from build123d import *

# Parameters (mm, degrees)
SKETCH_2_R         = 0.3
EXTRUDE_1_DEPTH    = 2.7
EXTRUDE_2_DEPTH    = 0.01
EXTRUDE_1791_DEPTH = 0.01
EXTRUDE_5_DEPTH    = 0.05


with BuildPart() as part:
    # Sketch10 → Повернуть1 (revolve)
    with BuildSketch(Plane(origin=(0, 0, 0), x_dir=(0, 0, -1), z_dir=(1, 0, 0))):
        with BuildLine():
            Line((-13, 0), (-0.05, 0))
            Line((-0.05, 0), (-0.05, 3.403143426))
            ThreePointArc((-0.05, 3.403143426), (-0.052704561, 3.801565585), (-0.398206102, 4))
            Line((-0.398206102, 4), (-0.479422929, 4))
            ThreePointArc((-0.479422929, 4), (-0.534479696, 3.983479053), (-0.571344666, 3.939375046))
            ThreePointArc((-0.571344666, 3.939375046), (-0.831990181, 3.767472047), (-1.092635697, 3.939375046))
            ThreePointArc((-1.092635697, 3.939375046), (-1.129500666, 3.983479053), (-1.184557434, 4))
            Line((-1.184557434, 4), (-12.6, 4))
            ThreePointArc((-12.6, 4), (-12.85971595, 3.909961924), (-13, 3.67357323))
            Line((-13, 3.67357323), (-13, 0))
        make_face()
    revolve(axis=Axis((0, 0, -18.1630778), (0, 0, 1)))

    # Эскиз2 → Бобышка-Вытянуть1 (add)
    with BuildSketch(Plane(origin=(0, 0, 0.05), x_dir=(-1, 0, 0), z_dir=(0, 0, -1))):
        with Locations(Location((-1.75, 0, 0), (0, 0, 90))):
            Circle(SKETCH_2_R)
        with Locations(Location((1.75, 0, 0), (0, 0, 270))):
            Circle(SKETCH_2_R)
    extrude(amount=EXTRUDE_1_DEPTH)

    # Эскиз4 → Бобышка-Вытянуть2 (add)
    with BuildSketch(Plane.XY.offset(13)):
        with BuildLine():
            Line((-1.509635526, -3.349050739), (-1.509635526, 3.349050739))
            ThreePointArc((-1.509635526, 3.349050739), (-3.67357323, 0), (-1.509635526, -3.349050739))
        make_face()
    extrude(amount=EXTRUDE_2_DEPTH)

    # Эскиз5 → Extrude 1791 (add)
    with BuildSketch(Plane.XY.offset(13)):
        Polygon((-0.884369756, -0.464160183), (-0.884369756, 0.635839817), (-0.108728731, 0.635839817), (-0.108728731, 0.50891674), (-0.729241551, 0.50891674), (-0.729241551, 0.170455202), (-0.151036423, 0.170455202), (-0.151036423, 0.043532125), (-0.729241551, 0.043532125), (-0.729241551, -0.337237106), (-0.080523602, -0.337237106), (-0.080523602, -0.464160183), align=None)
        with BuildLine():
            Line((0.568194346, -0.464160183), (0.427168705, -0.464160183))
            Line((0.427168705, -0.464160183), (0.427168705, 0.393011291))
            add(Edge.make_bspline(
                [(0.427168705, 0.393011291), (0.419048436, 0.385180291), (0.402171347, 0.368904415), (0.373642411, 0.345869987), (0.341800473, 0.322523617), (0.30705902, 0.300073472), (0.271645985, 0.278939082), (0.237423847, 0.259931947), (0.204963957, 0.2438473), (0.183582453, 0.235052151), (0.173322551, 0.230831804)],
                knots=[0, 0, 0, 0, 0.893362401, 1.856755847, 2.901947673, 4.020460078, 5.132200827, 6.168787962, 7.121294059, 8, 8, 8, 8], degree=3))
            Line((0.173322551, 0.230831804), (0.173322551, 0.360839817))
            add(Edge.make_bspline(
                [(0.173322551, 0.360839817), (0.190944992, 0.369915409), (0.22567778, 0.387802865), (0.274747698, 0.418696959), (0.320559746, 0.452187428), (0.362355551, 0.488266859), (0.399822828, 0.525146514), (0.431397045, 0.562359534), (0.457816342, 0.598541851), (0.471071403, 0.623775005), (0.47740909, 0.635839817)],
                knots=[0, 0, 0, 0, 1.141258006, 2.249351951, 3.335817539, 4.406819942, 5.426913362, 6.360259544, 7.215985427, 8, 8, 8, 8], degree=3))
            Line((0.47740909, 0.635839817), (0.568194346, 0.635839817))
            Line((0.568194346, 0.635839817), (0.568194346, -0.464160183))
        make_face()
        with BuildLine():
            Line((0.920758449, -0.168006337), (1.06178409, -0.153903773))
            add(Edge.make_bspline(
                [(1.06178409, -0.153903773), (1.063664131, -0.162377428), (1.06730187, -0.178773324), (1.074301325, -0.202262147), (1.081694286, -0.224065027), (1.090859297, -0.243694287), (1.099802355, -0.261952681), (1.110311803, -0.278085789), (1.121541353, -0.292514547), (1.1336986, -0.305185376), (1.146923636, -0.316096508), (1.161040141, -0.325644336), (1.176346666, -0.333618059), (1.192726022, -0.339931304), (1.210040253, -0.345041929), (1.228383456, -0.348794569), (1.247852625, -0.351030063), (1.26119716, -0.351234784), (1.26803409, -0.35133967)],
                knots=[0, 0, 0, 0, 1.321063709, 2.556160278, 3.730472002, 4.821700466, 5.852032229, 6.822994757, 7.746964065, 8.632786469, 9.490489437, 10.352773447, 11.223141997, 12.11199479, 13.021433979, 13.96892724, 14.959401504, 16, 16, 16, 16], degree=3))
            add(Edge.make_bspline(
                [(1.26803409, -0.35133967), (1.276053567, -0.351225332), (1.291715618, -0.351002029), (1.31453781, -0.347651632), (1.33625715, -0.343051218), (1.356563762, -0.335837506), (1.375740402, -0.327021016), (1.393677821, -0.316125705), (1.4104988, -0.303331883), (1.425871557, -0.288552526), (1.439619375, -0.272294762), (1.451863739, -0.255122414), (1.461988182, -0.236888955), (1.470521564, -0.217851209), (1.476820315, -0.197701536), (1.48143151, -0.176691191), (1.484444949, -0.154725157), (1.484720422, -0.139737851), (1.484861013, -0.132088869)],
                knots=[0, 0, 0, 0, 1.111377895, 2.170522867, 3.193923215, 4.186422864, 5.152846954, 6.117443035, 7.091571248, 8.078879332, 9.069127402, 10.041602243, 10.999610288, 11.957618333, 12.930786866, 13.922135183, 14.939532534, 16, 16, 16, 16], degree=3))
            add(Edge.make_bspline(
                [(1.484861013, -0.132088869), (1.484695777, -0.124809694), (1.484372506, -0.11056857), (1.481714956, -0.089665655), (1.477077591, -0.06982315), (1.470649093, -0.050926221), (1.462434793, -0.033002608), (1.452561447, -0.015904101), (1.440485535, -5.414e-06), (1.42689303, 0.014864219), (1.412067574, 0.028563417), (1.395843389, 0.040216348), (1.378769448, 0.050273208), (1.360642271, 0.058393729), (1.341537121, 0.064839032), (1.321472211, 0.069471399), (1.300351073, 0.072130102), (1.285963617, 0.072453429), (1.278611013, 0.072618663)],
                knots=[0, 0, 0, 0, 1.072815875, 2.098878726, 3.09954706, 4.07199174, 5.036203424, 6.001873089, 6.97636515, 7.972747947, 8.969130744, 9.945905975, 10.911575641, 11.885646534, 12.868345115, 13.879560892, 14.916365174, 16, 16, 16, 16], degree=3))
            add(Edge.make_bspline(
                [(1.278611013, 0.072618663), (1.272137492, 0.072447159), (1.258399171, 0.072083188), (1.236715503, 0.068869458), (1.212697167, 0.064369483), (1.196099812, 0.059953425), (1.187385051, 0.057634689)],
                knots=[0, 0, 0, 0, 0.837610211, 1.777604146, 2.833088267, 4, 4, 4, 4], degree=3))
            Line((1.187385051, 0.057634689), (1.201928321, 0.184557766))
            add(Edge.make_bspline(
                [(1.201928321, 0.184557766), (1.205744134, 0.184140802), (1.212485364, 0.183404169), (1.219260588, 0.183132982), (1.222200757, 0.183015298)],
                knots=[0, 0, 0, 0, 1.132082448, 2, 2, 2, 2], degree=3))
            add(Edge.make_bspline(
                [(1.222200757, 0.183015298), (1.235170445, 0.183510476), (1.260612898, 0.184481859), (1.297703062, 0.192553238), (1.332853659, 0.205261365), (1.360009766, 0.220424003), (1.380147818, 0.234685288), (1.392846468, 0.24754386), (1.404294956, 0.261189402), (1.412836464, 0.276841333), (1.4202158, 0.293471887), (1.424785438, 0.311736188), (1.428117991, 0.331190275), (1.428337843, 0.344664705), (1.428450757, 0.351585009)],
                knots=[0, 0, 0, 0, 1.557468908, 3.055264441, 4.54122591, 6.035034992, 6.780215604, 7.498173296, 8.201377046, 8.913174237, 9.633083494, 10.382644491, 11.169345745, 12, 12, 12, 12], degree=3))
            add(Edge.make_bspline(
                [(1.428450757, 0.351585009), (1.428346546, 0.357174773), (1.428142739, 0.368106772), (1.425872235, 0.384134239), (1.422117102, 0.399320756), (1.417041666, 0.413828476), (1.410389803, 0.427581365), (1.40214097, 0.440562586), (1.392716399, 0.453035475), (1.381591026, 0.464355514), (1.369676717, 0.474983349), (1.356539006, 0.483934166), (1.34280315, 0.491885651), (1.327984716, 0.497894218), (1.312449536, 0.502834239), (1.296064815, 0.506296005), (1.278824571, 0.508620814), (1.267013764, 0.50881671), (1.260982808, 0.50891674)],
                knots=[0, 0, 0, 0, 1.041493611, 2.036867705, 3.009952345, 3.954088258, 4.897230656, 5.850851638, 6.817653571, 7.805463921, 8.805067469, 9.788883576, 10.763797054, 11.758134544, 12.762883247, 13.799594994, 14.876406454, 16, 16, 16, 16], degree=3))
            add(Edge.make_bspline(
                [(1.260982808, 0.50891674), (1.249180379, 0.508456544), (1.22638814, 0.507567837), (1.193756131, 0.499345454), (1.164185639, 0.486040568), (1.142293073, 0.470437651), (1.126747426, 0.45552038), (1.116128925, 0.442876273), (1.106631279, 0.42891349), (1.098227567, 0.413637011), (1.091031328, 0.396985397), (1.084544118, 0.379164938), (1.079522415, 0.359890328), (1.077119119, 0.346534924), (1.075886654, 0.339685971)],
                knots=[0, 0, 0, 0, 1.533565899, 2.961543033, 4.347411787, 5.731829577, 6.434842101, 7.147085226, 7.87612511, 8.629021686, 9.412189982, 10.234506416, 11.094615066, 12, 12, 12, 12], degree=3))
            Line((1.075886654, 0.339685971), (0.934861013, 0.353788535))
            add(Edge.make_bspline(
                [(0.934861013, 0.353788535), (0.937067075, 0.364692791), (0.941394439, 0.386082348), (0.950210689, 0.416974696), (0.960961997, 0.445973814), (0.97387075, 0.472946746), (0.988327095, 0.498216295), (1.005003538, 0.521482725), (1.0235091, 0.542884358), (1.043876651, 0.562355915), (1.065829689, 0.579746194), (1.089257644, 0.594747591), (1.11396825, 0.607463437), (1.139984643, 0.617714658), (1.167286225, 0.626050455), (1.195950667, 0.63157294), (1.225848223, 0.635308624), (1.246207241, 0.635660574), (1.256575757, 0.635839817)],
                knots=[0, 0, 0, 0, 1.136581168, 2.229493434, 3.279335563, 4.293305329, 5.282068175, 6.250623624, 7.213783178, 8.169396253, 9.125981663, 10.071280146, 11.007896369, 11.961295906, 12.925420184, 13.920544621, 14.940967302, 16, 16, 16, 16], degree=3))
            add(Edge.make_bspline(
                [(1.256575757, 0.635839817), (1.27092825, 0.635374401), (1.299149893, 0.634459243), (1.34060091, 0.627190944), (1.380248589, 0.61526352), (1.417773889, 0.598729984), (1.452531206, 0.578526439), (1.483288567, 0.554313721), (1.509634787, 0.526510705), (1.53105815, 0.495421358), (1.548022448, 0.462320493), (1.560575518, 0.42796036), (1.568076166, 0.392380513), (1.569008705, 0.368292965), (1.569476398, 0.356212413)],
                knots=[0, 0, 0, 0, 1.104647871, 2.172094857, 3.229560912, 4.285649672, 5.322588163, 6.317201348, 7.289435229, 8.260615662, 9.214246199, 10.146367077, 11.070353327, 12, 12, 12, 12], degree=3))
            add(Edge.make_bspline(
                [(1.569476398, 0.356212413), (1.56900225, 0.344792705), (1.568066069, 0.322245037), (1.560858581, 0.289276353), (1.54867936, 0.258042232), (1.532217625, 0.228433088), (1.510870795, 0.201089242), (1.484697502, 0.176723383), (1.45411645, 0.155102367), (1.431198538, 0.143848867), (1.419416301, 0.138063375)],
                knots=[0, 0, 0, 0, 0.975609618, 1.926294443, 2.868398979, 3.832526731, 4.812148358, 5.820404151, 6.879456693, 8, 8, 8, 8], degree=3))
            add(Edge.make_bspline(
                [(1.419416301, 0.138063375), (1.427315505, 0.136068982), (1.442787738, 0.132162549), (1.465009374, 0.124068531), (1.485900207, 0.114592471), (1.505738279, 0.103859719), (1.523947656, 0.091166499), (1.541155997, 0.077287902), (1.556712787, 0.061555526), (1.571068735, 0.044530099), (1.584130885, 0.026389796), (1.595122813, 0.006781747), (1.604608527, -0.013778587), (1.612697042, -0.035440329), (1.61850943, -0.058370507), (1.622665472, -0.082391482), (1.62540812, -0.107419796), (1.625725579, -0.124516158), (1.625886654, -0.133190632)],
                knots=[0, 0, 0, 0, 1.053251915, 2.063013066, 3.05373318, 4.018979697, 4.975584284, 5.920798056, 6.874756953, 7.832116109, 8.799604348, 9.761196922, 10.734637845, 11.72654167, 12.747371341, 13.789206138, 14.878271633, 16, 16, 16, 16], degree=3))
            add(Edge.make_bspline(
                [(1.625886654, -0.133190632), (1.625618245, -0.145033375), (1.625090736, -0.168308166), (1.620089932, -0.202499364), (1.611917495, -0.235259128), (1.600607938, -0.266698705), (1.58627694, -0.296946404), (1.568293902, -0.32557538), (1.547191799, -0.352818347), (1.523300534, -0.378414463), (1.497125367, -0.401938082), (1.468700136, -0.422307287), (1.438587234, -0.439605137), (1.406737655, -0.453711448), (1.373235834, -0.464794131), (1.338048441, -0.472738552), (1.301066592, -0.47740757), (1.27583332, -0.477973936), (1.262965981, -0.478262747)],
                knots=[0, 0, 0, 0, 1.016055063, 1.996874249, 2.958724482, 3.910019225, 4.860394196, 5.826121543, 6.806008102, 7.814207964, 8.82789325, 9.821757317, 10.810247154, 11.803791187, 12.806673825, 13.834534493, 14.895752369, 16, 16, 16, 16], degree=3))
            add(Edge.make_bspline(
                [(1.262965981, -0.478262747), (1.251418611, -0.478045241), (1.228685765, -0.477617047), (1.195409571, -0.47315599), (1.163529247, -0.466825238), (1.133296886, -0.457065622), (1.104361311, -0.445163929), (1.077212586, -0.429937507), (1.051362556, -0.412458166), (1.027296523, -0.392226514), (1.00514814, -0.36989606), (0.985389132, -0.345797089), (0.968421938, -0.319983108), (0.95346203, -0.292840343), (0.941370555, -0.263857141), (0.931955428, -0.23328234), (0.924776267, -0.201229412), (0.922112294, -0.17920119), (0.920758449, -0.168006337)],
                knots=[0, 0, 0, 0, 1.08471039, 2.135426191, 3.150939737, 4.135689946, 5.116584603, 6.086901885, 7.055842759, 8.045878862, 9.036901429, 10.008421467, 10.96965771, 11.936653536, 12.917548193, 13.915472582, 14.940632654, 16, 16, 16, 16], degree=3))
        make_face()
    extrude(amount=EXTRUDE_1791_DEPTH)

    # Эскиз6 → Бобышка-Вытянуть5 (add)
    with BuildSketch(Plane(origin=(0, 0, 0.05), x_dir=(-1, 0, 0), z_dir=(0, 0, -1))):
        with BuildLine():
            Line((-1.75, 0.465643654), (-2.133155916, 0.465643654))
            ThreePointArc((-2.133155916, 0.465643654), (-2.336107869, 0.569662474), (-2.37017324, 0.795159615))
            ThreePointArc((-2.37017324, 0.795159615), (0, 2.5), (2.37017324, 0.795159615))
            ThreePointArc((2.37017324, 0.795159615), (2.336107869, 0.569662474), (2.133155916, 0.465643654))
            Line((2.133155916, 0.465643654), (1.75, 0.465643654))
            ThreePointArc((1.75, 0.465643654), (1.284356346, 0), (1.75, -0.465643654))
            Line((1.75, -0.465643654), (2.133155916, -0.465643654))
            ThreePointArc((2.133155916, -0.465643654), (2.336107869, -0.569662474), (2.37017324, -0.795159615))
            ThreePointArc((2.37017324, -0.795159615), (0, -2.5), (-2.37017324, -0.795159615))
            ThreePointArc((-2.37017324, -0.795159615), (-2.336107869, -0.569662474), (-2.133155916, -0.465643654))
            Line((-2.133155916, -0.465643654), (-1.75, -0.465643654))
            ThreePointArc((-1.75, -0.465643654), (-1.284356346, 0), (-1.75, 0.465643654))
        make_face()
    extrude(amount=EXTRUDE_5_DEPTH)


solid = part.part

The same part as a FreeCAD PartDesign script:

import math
import FreeCAD as App
import Part
import Sketcher
from FreeCAD import Vector


def add_polygon(sketch, points):
    """Adds a closed chain of lines whose ends are joined by coincident constraints."""
    first, n = sketch.GeometryCount, len(points)
    for a, b in zip(points, points[1:] + points[:1]):
        sketch.addGeometry(Part.LineSegment(App.Vector(*a, 0), App.Vector(*b, 0)), False)
    for i in range(n):
        sketch.addConstraint(Sketcher.Constraint("Coincident", first + i, 2, first + (i + 1) % n, 1))

doc = App.newDocument("Part")
params = doc.addObject("Spreadsheet::Sheet", "Params")
for row, (alias, value) in enumerate([
    ("sketch1_radius", "0.4 mm"),
    ("sketch1_radius2", "0.1 mm"),
    ("sketch1_height", "12.95 mm"),
    ("revolution_angle", "360 deg"),
    ("sketch2_diameter", "0.6 mm"),
    ("pad1_length", "2.7 mm"),
    ("pad2_length", "0.01 mm"),
    ("sketch4_height", "1.1 mm"),
    ("pad3_length", "0.01 mm"),
    ("sketch5_radius", "2.5 mm"),
    ("sketch5_radius2", "0.25 mm"),
    ("pad4_length", "0.05 mm"),
], start=1):
    params.set(f"A{row}", alias)
    params.set(f"B{row}", "=" + value)
    params.setAlias(f"B{row}", alias)

body = doc.addObject("PartDesign::Body", "Body")

# Sketch on YZ plane
sketch1 = body.newObject("Sketcher::SketchObject", "Sketch")
sketch1.AttachmentSupport = (doc.getObject("YZ_Plane"), [""])
sketch1.MapMode = "FlatFace"
sketch1.addGeometry([
    Part.LineSegment(Vector(0, 13, 0), Vector(0, 0.05, 0)),  # 0
    Part.LineSegment(Vector(0, 0.05, 0), Vector(3.4, 0.05, 0)),  # 1
    Part.ArcOfCircle(Part.Circle(Vector(3.6, 0.4, 0), Vector(0, 0, 1), 0.4), math.radians(-119), math.radians(0)),  # 2
    Part.LineSegment(Vector(4, 0.4, 0), Vector(4, 0.48, 0)),  # 3
    Part.ArcOfCircle(Part.Circle(Vector(3.9, 0.48, 0), Vector(0, 0, 1), 0.1), math.radians(0), math.radians(67)),  # 4
    Part.ArcOfCircle(Part.Circle(Vector(4.05, 0.83, 0), Vector(0, 0, 1), 0.28), math.radians(113), math.radians(247)),  # 5
    Part.ArcOfCircle(Part.Circle(Vector(3.9, 1.18, 0), Vector(0, 0, 1), 0.1), math.radians(-67), math.radians(0)),  # 6
    Part.LineSegment(Vector(4, 1.18, 0), Vector(4, 12.6, 0)),  # 7
    Part.ArcOfCircle(Part.Circle(Vector(3.6, 12.61, 0), Vector(0, 0, 1), 0.4), math.radians(-1), math.radians(79)),  # 8
    Part.LineSegment(Vector(3.67, 13, 0), Vector(0, 13, 0)),  # 9
], False)
sketch1.addConstraint([
    Sketcher.Constraint("Coincident", 0, 2, 1, 1),
    Sketcher.Constraint("Coincident", 1, 2, 2, 1),
    Sketcher.Constraint("Tangent", 2, 2, 3, 1),
    Sketcher.Constraint("Tangent", 3, 2, 4, 1),
    Sketcher.Constraint("Tangent", 4, 2, 5, 2),
    Sketcher.Constraint("Tangent", 5, 1, 6, 1),
    Sketcher.Constraint("Tangent", 6, 2, 7, 1),
    Sketcher.Constraint("Coincident", 7, 2, 8, 1),
    Sketcher.Constraint("Coincident", 8, 2, 9, 1),
    Sketcher.Constraint("Coincident", 9, 2, 0, 1),
    Sketcher.Constraint("Vertical", 0),
    Sketcher.Constraint("Horizontal", 1),
    Sketcher.Constraint("Vertical", 3),
    Sketcher.Constraint("Vertical", 7),
    Sketcher.Constraint("Horizontal", 9),
    Sketcher.Constraint("Equal", 4, 6),
    Sketcher.Constraint("Equal", 2, 8),
    Sketcher.Constraint("PointOnObject", 0, 2, -2),
    Sketcher.Constraint("Vertical", 4, 3, 6, 3),
    Sketcher.Constraint("Radius", 2, 0.4),
    Sketcher.Constraint("Radius", 4, 0.1),
    Sketcher.Constraint("DistanceX", -1, 1, 2, 2, 4.0),
    Sketcher.Constraint("DistanceY", -1, 1, 8, 2, 13.0),
    Sketcher.Constraint("DistanceY", 0, 2, 0, 1, 12.95),
    Sketcher.Constraint("DistanceY", -1, 1, 7, 2, 12.6),
    Sketcher.Constraint("Radius", 5, 0.283552),
    Sketcher.Constraint("DistanceX", 8, 2, 5, 1, 0.265802),
    Sketcher.Constraint("DistanceX", 1, 1, 1, 2, 3.403143),
    Sketcher.Constraint("DistanceX", 9, 2, 9, 1, 3.673573),
    Sketcher.Constraint("DistanceY", 3, 1, 3, 2, 0.081217),
])
sketch1.setExpression("Constraints[19]", "Params.sketch1_radius")
sketch1.setExpression("Constraints[20]", "Params.sketch1_radius2")
sketch1.setExpression("Constraints[23]", "Params.sketch1_height")
revolution = body.newObject("PartDesign::Revolution", "Revolution")
revolution.Profile = sketch1
revolution.ReferenceAxis = (sketch1, ["V_Axis"])
revolution.setExpression("Angle", "Params.revolution_angle")

# Sketch on XY plane
sketch2 = body.newObject("Sketcher::SketchObject", "Sketch001")
sketch2.AttachmentSupport = (doc.getObject("XY_Plane"), [""])
sketch2.MapMode = "FlatFace"
sketch2.AttachmentOffset = App.Placement(Vector(0, 0, 0.05), App.Rotation())
sketch2.addGeometry([
    Part.Circle(Vector(1.75, 0, 0), Vector(0, 0, 1), 0.3),
    Part.Circle(Vector(-1.75, 0, 0), Vector(0, 0, 1), 0.3),
], False)
sketch2.addConstraint([
    Sketcher.Constraint("Equal", 0, 1),
    Sketcher.Constraint("Symmetric", 0, 3, 1, 3, -1, 1),
    Sketcher.Constraint("PointOnObject", 0, 3, -1),
    Sketcher.Constraint("Diameter", 0, 0.6),
    Sketcher.Constraint("DistanceX", 1, 3, 0, 3, 3.5),
])
sketch2.setExpression("Constraints[3]", "Params.sketch2_diameter")
pad1 = body.newObject("PartDesign::Pad", "Pad")
pad1.Profile = sketch2
pad1.setExpression("Length", "Params.pad1_length")
pad1.Reversed = True

# Sketch on XY plane
sketch3 = body.newObject("Sketcher::SketchObject", "Sketch002")
sketch3.AttachmentSupport = (doc.getObject("XY_Plane"), [""])
sketch3.MapMode = "FlatFace"
sketch3.AttachmentOffset = App.Placement(Vector(0, 0, 13), App.Rotation())
sketch3.addGeometry([
    Part.LineSegment(Vector(-1.5, -3.3, 0), Vector(-1.5, 3.3, 0)),
    Part.ArcOfCircle(Part.Circle(Vector(0, 0, 0), Vector(0, 0, 1), 3.7), math.radians(114), math.radians(246)),
], False)
sketch3.addConstraint([
    Sketcher.Constraint("Coincident", 0, 1, 1, 2),
    Sketcher.Constraint("Coincident", 1, 1, 0, 2),
    Sketcher.Constraint("Vertical", 0),
    Sketcher.Constraint("Coincident", 1, 3, -1, 1),
    Sketcher.Constraint("DistanceY", 0, 1, 0, 2, 6.698101),
    Sketcher.Constraint("Radius", 1, 3.673573),
])
pad2 = body.newObject("PartDesign::Pad", "Pad001")
pad2.Profile = sketch3
pad2.setExpression("Length", "Params.pad2_length")

# Sketch on XY plane
sketch4 = body.newObject("Sketcher::SketchObject", "Sketch003")
sketch4.AttachmentSupport = (doc.getObject("XY_Plane"), [""])
sketch4.MapMode = "FlatFace"
sketch4.AttachmentOffset = App.Placement(Vector(0, 0, 13), App.Rotation())
add_polygon(sketch4, [(-0.88437, 0.63584), (-0.88437, -0.46416), (-0.080524, -0.46416), (-0.080524, -0.337237), (-0.729242, -0.337237), (-0.729242, 0.043532), (-0.151036, 0.043532), (-0.151036, 0.170455), (-0.729242, 0.170455), (-0.729242, 0.508917), (-0.108729, 0.508917), (-0.108729, 0.63584)])  # lines 0-11
sketch4.addGeometry(Part.LineSegment(Vector(0.427169, -0.46416, 0), Vector(0.568194, -0.46416, 0)), False)  # 12
sketch4.addGeometry(Part.LineSegment(Vector(0.568194, -0.46416, 0), Vector(0.568194, 0.63584, 0)), False)  # 13
sketch4.addGeometry(Part.LineSegment(Vector(0.568194, 0.63584, 0), Vector(0.477409, 0.63584, 0)), False)  # 14
sketch4.addGeometry(Part.BSplineCurve([Vector(0.173323, 0.36084, 0), Vector(0.190945, 0.369915, 0), Vector(0.225678, 0.387803, 0), Vector(0.274748, 0.418697, 0), Vector(0.32056, 0.452187, 0), Vector(0.362356, 0.488267, 0), Vector(0.399823, 0.525147, 0), Vector(0.431397, 0.56236, 0), Vector(0.457816, 0.598542, 0), Vector(0.471071, 0.623775, 0), Vector(0.477409, 0.63584, 0)], [4, 1, 1, 1, 1, 1, 1, 1, 4], [0, 1.141258006, 2.249351951, 3.335817539, 4.406819942, 5.426913362, 6.360259544, 7.215985427, 8], False, 3, [1, 1, 1, 1, 1, 1, 1, 1, 1, 1, 1], False), False)  # 15
sketch4.addGeometry(Part.LineSegment(Vector(0.173323, 0.36084, 0), Vector(0.173323, 0.230832, 0)), False)  # 16
sketch4.addGeometry(Part.BSplineCurve([Vector(0.427169, 0.393011, 0), Vector(0.419048, 0.38518, 0), Vector(0.402171, 0.368904, 0), Vector(0.373642, 0.34587, 0), Vector(0.3418, 0.322524, 0), Vector(0.307059, 0.300073, 0), Vector(0.271646, 0.278939, 0), Vector(0.237424, 0.259932, 0), Vector(0.204964, 0.243847, 0), Vector(0.183582, 0.235052, 0), Vector(0.173323, 0.230832, 0)], [4, 1, 1, 1, 1, 1, 1, 1, 4], [0, 0.893362401, 1.856755847, 2.901947673, 4.020460078, 5.132200827, 6.168787962, 7.121294059, 8], False, 3, [1, 1, 1, 1, 1, 1, 1, 1, 1, 1, 1], False), False)  # 17
sketch4.addGeometry(Part.LineSegment(Vector(0.427169, 0.393011, 0), Vector(0.427169, -0.46416, 0)), False)  # 18
sketch4.addGeometry(Part.LineSegment(Vector(1.061784, -0.153904, 0), Vector(0.920758, -0.168006, 0)), False)  # 19
sketch4.addGeometry(Part.BSplineCurve([Vector(1.262966, -0.478263, 0), Vector(1.251419, -0.478045, 0), Vector(1.228686, -0.477617, 0), Vector(1.19541, -0.473156, 0), Vector(1.163529, -0.466825, 0), Vector(1.133297, -0.457066, 0), Vector(1.104361, -0.445164, 0), Vector(1.077213, -0.429938, 0), Vector(1.051363, -0.412458, 0), Vector(1.027297, -0.392227, 0), Vector(1.005148, -0.369896, 0), Vector(0.985389, -0.345797, 0), Vector(0.968422, -0.319983, 0), Vector(0.953462, -0.29284, 0), Vector(0.941371, -0.263857, 0), Vector(0.931955, -0.233282, 0), Vector(0.924776, -0.201229, 0), Vector(0.922112, -0.179201, 0), Vector(0.920758, -0.168006, 0)], [4, 1, 1, 1, 1, 1, 1, 1, 1, 1, 1, 1, 1, 1, 1, 1, 4], [0, 1.08471039, 2.135426191, 3.150939737, 4.135689946, 5.116584603, 6.086901885, 7.055842759, 8.045878862, 9.036901429, 10.008421467, 10.96965771, 11.936653536, 12.917548193, 13.915472582, 14.940632654, 16], False, 3, [1, 1, 1, 1, 1, 1, 1, 1, 1, 1, 1, 1, 1, 1, 1, 1, 1, 1, 1], False), False)  # 20
sketch4.addGeometry(Part.BSplineCurve([Vector(1.625887, -0.133191, 0), Vector(1.625618, -0.145033, 0), Vector(1.625091, -0.168308, 0), Vector(1.62009, -0.202499, 0), Vector(1.611917, -0.235259, 0), Vector(1.600608, -0.266699, 0), Vector(1.586277, -0.296946, 0), Vector(1.568294, -0.325575, 0), Vector(1.547192, -0.352818, 0), Vector(1.523301, -0.378414, 0), Vector(1.497125, -0.401938, 0), Vector(1.4687, -0.422307, 0), Vector(1.438587, -0.439605, 0), Vector(1.406738, -0.453711, 0), Vector(1.373236, -0.464794, 0), Vector(1.338048, -0.472739, 0), Vector(1.301067, -0.477408, 0), Vector(1.275833, -0.477974, 0), Vector(1.262966, -0.478263, 0)], [4, 1, 1, 1, 1, 1, 1, 1, 1, 1, 1, 1, 1, 1, 1, 1, 4], [0, 1.016055063, 1.996874249, 2.958724482, 3.910019225, 4.860394196, 5.826121543, 6.806008102, 7.814207964, 8.82789325, 9.821757317, 10.810247154, 11.803791187, 12.806673825, 13.834534493, 14.895752369, 16], False, 3, [1, 1, 1, 1, 1, 1, 1, 1, 1, 1, 1, 1, 1, 1, 1, 1, 1, 1, 1], False), False)  # 21
sketch4.addGeometry(Part.BSplineCurve([Vector(1.419416, 0.138063, 0), Vector(1.427316, 0.136069, 0), Vector(1.442788, 0.132163, 0), Vector(1.465009, 0.124069, 0), Vector(1.4859, 0.114592, 0), Vector(1.505738, 0.10386, 0), Vector(1.523948, 0.091166, 0), Vector(1.541156, 0.077288, 0), Vector(1.556713, 0.061556, 0), Vector(1.571069, 0.04453, 0), Vector(1.584131, 0.02639, 0), Vector(1.595123, 0.006782, 0), Vector(1.604609, -0.013779, 0), Vector(1.612697, -0.03544, 0), Vector(1.618509, -0.058371, 0), Vector(1.622665, -0.082391, 0), Vector(1.625408, -0.10742, 0), Vector(1.625726, -0.124516, 0), Vector(1.625887, -0.133191, 0)], [4, 1, 1, 1, 1, 1, 1, 1, 1, 1, 1, 1, 1, 1, 1, 1, 4], [0, 1.053251915, 2.063013066, 3.05373318, 4.018979697, 4.975584284, 5.920798056, 6.874756953, 7.832116109, 8.799604348, 9.761196922, 10.734637845, 11.72654167, 12.747371341, 13.789206138, 14.878271633, 16], False, 3, [1, 1, 1, 1, 1, 1, 1, 1, 1, 1, 1, 1, 1, 1, 1, 1, 1, 1, 1], False), False)  # 22
sketch4.addGeometry(Part.BSplineCurve([Vector(1.569476, 0.356212, 0), Vector(1.569002, 0.344793, 0), Vector(1.568066, 0.322245, 0), Vector(1.560859, 0.289276, 0), Vector(1.548679, 0.258042, 0), Vector(1.532218, 0.228433, 0), Vector(1.510871, 0.201089, 0), Vector(1.484698, 0.176723, 0), Vector(1.454116, 0.155102, 0), Vector(1.431199, 0.143849, 0), Vector(1.419416, 0.138063, 0)], [4, 1, 1, 1, 1, 1, 1, 1, 4], [0, 0.975609618, 1.926294443, 2.868398979, 3.832526731, 4.812148358, 5.820404151, 6.879456693, 8], False, 3, [1, 1, 1, 1, 1, 1, 1, 1, 1, 1, 1], False), False)  # 23
sketch4.addGeometry(Part.BSplineCurve([Vector(1.256576, 0.63584, 0), Vector(1.270928, 0.635374, 0), Vector(1.29915, 0.634459, 0), Vector(1.340601, 0.627191, 0), Vector(1.380249, 0.615264, 0), Vector(1.417774, 0.59873, 0), Vector(1.452531, 0.578526, 0), Vector(1.483289, 0.554314, 0), Vector(1.509635, 0.526511, 0), Vector(1.531058, 0.495421, 0), Vector(1.548022, 0.46232, 0), Vector(1.560576, 0.42796, 0), Vector(1.568076, 0.392381, 0), Vector(1.569009, 0.368293, 0), Vector(1.569476, 0.356212, 0)], [4, 1, 1, 1, 1, 1, 1, 1, 1, 1, 1, 1, 4], [0, 1.104647871, 2.172094857, 3.229560912, 4.285649672, 5.322588163, 6.317201348, 7.289435229, 8.260615662, 9.214246199, 10.146367077, 11.070353327, 12], False, 3, [1, 1, 1, 1, 1, 1, 1, 1, 1, 1, 1, 1, 1, 1, 1], False), False)  # 24
sketch4.addGeometry(Part.BSplineCurve([Vector(0.934861, 0.353789, 0), Vector(0.937067, 0.364693, 0), Vector(0.941394, 0.386082, 0), Vector(0.950211, 0.416975, 0), Vector(0.960962, 0.445974, 0), Vector(0.973871, 0.472947, 0), Vector(0.988327, 0.498216, 0), Vector(1.005004, 0.521483, 0), Vector(1.023509, 0.542884, 0), Vector(1.043877, 0.562356, 0), Vector(1.06583, 0.579746, 0), Vector(1.089258, 0.594748, 0), Vector(1.113968, 0.607463, 0), Vector(1.139985, 0.617715, 0), Vector(1.167286, 0.62605, 0), Vector(1.195951, 0.631573, 0), Vector(1.225848, 0.635309, 0), Vector(1.246207, 0.635661, 0), Vector(1.256576, 0.63584, 0)], [4, 1, 1, 1, 1, 1, 1, 1, 1, 1, 1, 1, 1, 1, 1, 1, 4], [0, 1.136581168, 2.229493434, 3.279335563, 4.293305329, 5.282068175, 6.250623624, 7.213783178, 8.169396253, 9.125981663, 10.071280146, 11.007896369, 11.961295906, 12.925420184, 13.920544621, 14.940967302, 16], False, 3, [1, 1, 1, 1, 1, 1, 1, 1, 1, 1, 1, 1, 1, 1, 1, 1, 1, 1, 1], False), False)  # 25
sketch4.addGeometry(Part.LineSegment(Vector(0.934861, 0.353789, 0), Vector(1.075887, 0.339686, 0)), False)  # 26
sketch4.addGeometry(Part.BSplineCurve([Vector(1.260983, 0.508917, 0), Vector(1.24918, 0.508457, 0), Vector(1.226388, 0.507568, 0), Vector(1.193756, 0.499345, 0), Vector(1.164186, 0.486041, 0), Vector(1.142293, 0.470438, 0), Vector(1.126747, 0.45552, 0), Vector(1.116129, 0.442876, 0), Vector(1.106631, 0.428913, 0), Vector(1.098228, 0.413637, 0), Vector(1.091031, 0.396985, 0), Vector(1.084544, 0.379165, 0), Vector(1.079522, 0.35989, 0), Vector(1.077119, 0.346535, 0), Vector(1.075887, 0.339686, 0)], [4, 1, 1, 1, 1, 1, 1, 1, 1, 1, 1, 1, 4], [0, 1.533565899, 2.961543033, 4.347411787, 5.731829577, 6.434842101, 7.147085226, 7.87612511, 8.629021686, 9.412189982, 10.234506416, 11.094615066, 12], False, 3, [1, 1, 1, 1, 1, 1, 1, 1, 1, 1, 1, 1, 1, 1, 1], False), False)  # 27
sketch4.addGeometry(Part.BSplineCurve([Vector(1.428451, 0.351585, 0), Vector(1.428347, 0.357175, 0), Vector(1.428143, 0.368107, 0), Vector(1.425872, 0.384134, 0), Vector(1.422117, 0.399321, 0), Vector(1.417042, 0.413828, 0), Vector(1.41039, 0.427581, 0), Vector(1.402141, 0.440563, 0), Vector(1.392716, 0.453035, 0), Vector(1.381591, 0.464356, 0), Vector(1.369677, 0.474983, 0), Vector(1.356539, 0.483934, 0), Vector(1.342803, 0.491886, 0), Vector(1.327985, 0.497894, 0), Vector(1.31245, 0.502834, 0), Vector(1.296065, 0.506296, 0), Vector(1.278825, 0.508621, 0), Vector(1.267014, 0.508817, 0), Vector(1.260983, 0.508917, 0)], [4, 1, 1, 1, 1, 1, 1, 1, 1, 1, 1, 1, 1, 1, 1, 1, 4], [0, 1.041493611, 2.036867705, 3.009952345, 3.954088258, 4.897230656, 5.850851638, 6.817653571, 7.805463921, 8.805067469, 9.788883576, 10.763797054, 11.758134544, 12.762883247, 13.799594994, 14.876406454, 16], False, 3, [1, 1, 1, 1, 1, 1, 1, 1, 1, 1, 1, 1, 1, 1, 1, 1, 1, 1, 1], False), False)  # 28
sketch4.addGeometry(Part.BSplineCurve([Vector(1.222201, 0.183015, 0), Vector(1.23517, 0.18351, 0), Vector(1.260613, 0.184482, 0), Vector(1.297703, 0.192553, 0), Vector(1.332854, 0.205261, 0), Vector(1.36001, 0.220424, 0), Vector(1.380148, 0.234685, 0), Vector(1.392846, 0.247544, 0), Vector(1.404295, 0.261189, 0), Vector(1.412836, 0.276841, 0), Vector(1.420216, 0.293472, 0), Vector(1.424785, 0.311736, 0), Vector(1.428118, 0.33119, 0), Vector(1.428338, 0.344665, 0), Vector(1.428451, 0.351585, 0)], [4, 1, 1, 1, 1, 1, 1, 1, 1, 1, 1, 1, 4], [0, 1.557468908, 3.055264441, 4.54122591, 6.035034992, 6.780215604, 7.498173296, 8.201377046, 8.913174237, 9.633083494, 10.382644491, 11.169345745, 12], False, 3, [1, 1, 1, 1, 1, 1, 1, 1, 1, 1, 1, 1, 1, 1, 1], False), False)  # 29
sketch4.addGeometry(Part.BSplineCurve([Vector(1.201928, 0.184558, 0), Vector(1.205744, 0.184141, 0), Vector(1.212485, 0.183404, 0), Vector(1.219261, 0.183133, 0), Vector(1.222201, 0.183015, 0)], [4, 1, 4], [0, 1.132082448, 2], False, 3, [1, 1, 1, 1, 1], False), False)  # 30
sketch4.addGeometry(Part.LineSegment(Vector(1.201928, 0.184558, 0), Vector(1.187385, 0.057635, 0)), False)  # 31
sketch4.addGeometry(Part.BSplineCurve([Vector(1.278611, 0.072619, 0), Vector(1.272137, 0.072447, 0), Vector(1.258399, 0.072083, 0), Vector(1.236716, 0.068869, 0), Vector(1.212697, 0.064369, 0), Vector(1.1961, 0.059953, 0), Vector(1.187385, 0.057635, 0)], [4, 1, 1, 1, 4], [0, 0.837610211, 1.777604146, 2.833088267, 4], False, 3, [1, 1, 1, 1, 1, 1, 1], False), False)  # 32
sketch4.addGeometry(Part.BSplineCurve([Vector(1.484861, -0.132089, 0), Vector(1.484696, -0.12481, 0), Vector(1.484373, -0.110569, 0), Vector(1.481715, -0.089666, 0), Vector(1.477078, -0.069823, 0), Vector(1.470649, -0.050926, 0), Vector(1.462435, -0.033003, 0), Vector(1.452561, -0.015904, 0), Vector(1.440486, -0.000005, 0), Vector(1.426893, 0.014864, 0), Vector(1.412068, 0.028563, 0), Vector(1.395843, 0.040216, 0), Vector(1.378769, 0.050273, 0), Vector(1.360642, 0.058394, 0), Vector(1.341537, 0.064839, 0), Vector(1.321472, 0.069471, 0), Vector(1.300351, 0.07213, 0), Vector(1.285964, 0.072453, 0), Vector(1.278611, 0.072619, 0)], [4, 1, 1, 1, 1, 1, 1, 1, 1, 1, 1, 1, 1, 1, 1, 1, 4], [0, 1.072815875, 2.098878726, 3.09954706, 4.07199174, 5.036203424, 6.001873089, 6.97636515, 7.972747947, 8.969130744, 9.945905975, 10.911575641, 11.885646534, 12.868345115, 13.879560892, 14.916365174, 16], False, 3, [1, 1, 1, 1, 1, 1, 1, 1, 1, 1, 1, 1, 1, 1, 1, 1, 1, 1, 1], False), False)  # 33
sketch4.addGeometry(Part.BSplineCurve([Vector(1.268034, -0.35134, 0), Vector(1.276054, -0.351225, 0), Vector(1.291716, -0.351002, 0), Vector(1.314538, -0.347652, 0), Vector(1.336257, -0.343051, 0), Vector(1.356564, -0.335838, 0), Vector(1.37574, -0.327021, 0), Vector(1.393678, -0.316126, 0), Vector(1.410499, -0.303332, 0), Vector(1.425872, -0.288553, 0), Vector(1.439619, -0.272295, 0), Vector(1.451864, -0.255122, 0), Vector(1.461988, -0.236889, 0), Vector(1.470522, -0.217851, 0), Vector(1.47682, -0.197702, 0), Vector(1.481432, -0.176691, 0), Vector(1.484445, -0.154725, 0), Vector(1.48472, -0.139738, 0), Vector(1.484861, -0.132089, 0)], [4, 1, 1, 1, 1, 1, 1, 1, 1, 1, 1, 1, 1, 1, 1, 1, 4], [0, 1.111377895, 2.170522867, 3.193923215, 4.186422864, 5.152846954, 6.117443035, 7.091571248, 8.078879332, 9.069127402, 10.041602243, 10.999610288, 11.957618333, 12.930786866, 13.922135183, 14.939532534, 16], False, 3, [1, 1, 1, 1, 1, 1, 1, 1, 1, 1, 1, 1, 1, 1, 1, 1, 1, 1, 1], False), False)  # 34
sketch4.addGeometry(Part.BSplineCurve([Vector(1.061784, -0.153904, 0), Vector(1.063664, -0.162377, 0), Vector(1.067302, -0.178773, 0), Vector(1.074301, -0.202262, 0), Vector(1.081694, -0.224065, 0), Vector(1.090859, -0.243694, 0), Vector(1.099802, -0.261953, 0), Vector(1.110312, -0.278086, 0), Vector(1.121541, -0.292515, 0), Vector(1.133699, -0.305185, 0), Vector(1.146924, -0.316097, 0), Vector(1.16104, -0.325644, 0), Vector(1.176347, -0.333618, 0), Vector(1.192726, -0.339931, 0), Vector(1.21004, -0.345042, 0), Vector(1.228383, -0.348795, 0), Vector(1.247853, -0.35103, 0), Vector(1.261197, -0.351235, 0), Vector(1.268034, -0.35134, 0)], [4, 1, 1, 1, 1, 1, 1, 1, 1, 1, 1, 1, 1, 1, 1, 1, 4], [0, 1.321063709, 2.556160278, 3.730472002, 4.821700466, 5.852032229, 6.822994757, 7.746964065, 8.632786469, 9.490489437, 10.352773447, 11.223141997, 12.11199479, 13.021433979, 13.96892724, 14.959401504, 16], False, 3, [1, 1, 1, 1, 1, 1, 1, 1, 1, 1, 1, 1, 1, 1, 1, 1, 1, 1, 1], False), False)  # 35
sketch4.addConstraint([
    Sketcher.Constraint("Block", 15),
    Sketcher.Constraint("Block", 17),
    Sketcher.Constraint("Block", 20),
    Sketcher.Constraint("Block", 21),
    Sketcher.Constraint("Block", 22),
    Sketcher.Constraint("Block", 23),
    Sketcher.Constraint("Block", 24),
    Sketcher.Constraint("Block", 25),
    Sketcher.Constraint("Block", 27),
    Sketcher.Constraint("Block", 28),
    Sketcher.Constraint("Block", 29),
    Sketcher.Constraint("Block", 30),
    Sketcher.Constraint("Block", 32),
    Sketcher.Constraint("Block", 33),
    Sketcher.Constraint("Block", 34),
    Sketcher.Constraint("Block", 35),
    Sketcher.Constraint("Coincident", 12, 2, 13, 1),
    Sketcher.Constraint("Coincident", 13, 2, 14, 1),
    Sketcher.Constraint("Coincident", 14, 2, 15, 2),
    Sketcher.Constraint("Coincident", 15, 1, 16, 1),
    Sketcher.Constraint("Coincident", 16, 2, 17, 2),
    Sketcher.Constraint("Coincident", 17, 1, 18, 1),
    Sketcher.Constraint("Coincident", 18, 2, 12, 1),
    Sketcher.Constraint("Coincident", 19, 2, 20, 2),
    Sketcher.Constraint("Coincident", 25, 1, 26, 1),
    Sketcher.Constraint("Coincident", 26, 2, 27, 2),
    Sketcher.Constraint("Coincident", 30, 1, 31, 1),
    Sketcher.Constraint("Coincident", 31, 2, 32, 2),
    Sketcher.Constraint("Coincident", 35, 1, 19, 1),
    Sketcher.Constraint("Vertical", 0),
    Sketcher.Constraint("Horizontal", 1),
    Sketcher.Constraint("Vertical", 2),
    Sketcher.Constraint("Horizontal", 3),
    Sketcher.Constraint("Vertical", 4),
    Sketcher.Constraint("Horizontal", 5),
    Sketcher.Constraint("Vertical", 6),
    Sketcher.Constraint("Horizontal", 7),
    Sketcher.Constraint("Vertical", 8),
    Sketcher.Constraint("Horizontal", 9),
    Sketcher.Constraint("Vertical", 10),
    Sketcher.Constraint("Horizontal", 11),
    Sketcher.Constraint("Horizontal", 12),
    Sketcher.Constraint("Vertical", 13),
    Sketcher.Constraint("Horizontal", 14),
    Sketcher.Constraint("Vertical", 18),
    Sketcher.Constraint("Horizontal", 1, 2, 12, 2),
    Sketcher.Constraint("Horizontal", 11, 2, 13, 2),
    Sketcher.Constraint("Vertical", 4, 2, 7, 2),
    Sketcher.Constraint("Equal", 2, 6),
    Sketcher.Constraint("Equal", 6, 10),
    Sketcher.Constraint("DistanceY", 0, 2, 0, 1, 1.1),
    Sketcher.Constraint("DistanceX", 11, 2, 11, 1, 0.775641),
    Sketcher.Constraint("DistanceY", 4, 1, 4, 2, 0.380769),
    Sketcher.Constraint("DistanceY", 8, 1, 8, 2, 0.338462),
    Sketcher.Constraint("DistanceX", 1, 1, 1, 2, 0.803846),
    Sketcher.Constraint("DistanceX", 3, 2, 3, 1, 0.648718),
    Sketcher.Constraint("DistanceX", 5, 1, 5, 2, 0.578205),
    Sketcher.Constraint("DistanceX", 12, 1, 12, 2, 0.141026),
    Sketcher.Constraint("DistanceX", 0, 2, -1, 1, 0.88437),
])
sketch4.setExpression("Constraints[62]", "Params.sketch4_height")
pad3 = body.newObject("PartDesign::Pad", "Pad002")
pad3.Profile = sketch4
pad3.setExpression("Length", "Params.pad3_length")

# Sketch on XY plane
sketch5 = body.newObject("Sketcher::SketchObject", "Sketch004")
sketch5.AttachmentSupport = (doc.getObject("XY_Plane"), [""])
sketch5.MapMode = "FlatFace"
sketch5.AttachmentOffset = App.Placement(Vector(0, 0, 0.05), App.Rotation())
sketch5.addGeometry([
    Part.LineSegment(Vector(2.13, 0.47, 0), Vector(1.75, 0.47, 0)),  # 0
    Part.ArcOfCircle(Part.Circle(Vector(1.75, 0, 0), Vector(0, 0, 1), 0.47), math.radians(90), math.radians(270)),  # 1
    Part.LineSegment(Vector(1.75, -0.47, 0), Vector(2.13, -0.47, 0)),  # 2
    Part.ArcOfCircle(Part.Circle(Vector(2.13, -0.72, 0), Vector(0, 0, 1), 0.25), math.radians(-19), math.radians(90)),  # 3
    Part.ArcOfCircle(Part.Circle(Vector(0, 0, 0), Vector(0, 0, 1), 2.5), math.radians(-161), math.radians(-19)),  # 4
    Part.ArcOfCircle(Part.Circle(Vector(-2.13, -0.72, 0), Vector(0, 0, 1), 0.25), math.radians(90), math.radians(199)),  # 5
    Part.LineSegment(Vector(-2.13, -0.47, 0), Vector(-1.75, -0.47, 0)),  # 6
    Part.ArcOfCircle(Part.Circle(Vector(-1.75, 0, 0), Vector(0, 0, 1), 0.47), math.radians(-90), math.radians(90)),  # 7
    Part.LineSegment(Vector(-1.75, 0.47, 0), Vector(-2.13, 0.47, 0)),  # 8
    Part.ArcOfCircle(Part.Circle(Vector(-2.13, 0.72, 0), Vector(0, 0, 1), 0.25), math.radians(161), math.radians(270)),  # 9
    Part.ArcOfCircle(Part.Circle(Vector(0, 0, 0), Vector(0, 0, 1), 2.5), math.radians(19), math.radians(161)),  # 10
    Part.ArcOfCircle(Part.Circle(Vector(2.13, 0.72, 0), Vector(0, 0, 1), 0.25), math.radians(-90), math.radians(19)),  # 11
], False)
sketch5.addConstraint([
    Sketcher.Constraint("Tangent", 0, 2, 1, 1),
    Sketcher.Constraint("Tangent", 1, 2, 2, 1),
    Sketcher.Constraint("Tangent", 2, 2, 3, 2),
    Sketcher.Constraint("Tangent", 3, 1, 4, 2),
    Sketcher.Constraint("Tangent", 4, 1, 5, 2),
    Sketcher.Constraint("Tangent", 5, 1, 6, 1),
    Sketcher.Constraint("Tangent", 6, 2, 7, 1),
    Sketcher.Constraint("Tangent", 7, 2, 8, 1),
    Sketcher.Constraint("Tangent", 8, 2, 9, 2),
    Sketcher.Constraint("Tangent", 9, 1, 10, 2),
    Sketcher.Constraint("Tangent", 10, 1, 11, 2),
    Sketcher.Constraint("Tangent", 11, 1, 0, 1),
    Sketcher.Constraint("Horizontal", 0),
    Sketcher.Constraint("Horizontal", 2),
    Sketcher.Constraint("Horizontal", 6),
    Sketcher.Constraint("Horizontal", 8),
    Sketcher.Constraint("Coincident", 4, 3, -1, 1),
    Sketcher.Constraint("Coincident", 10, 3, -1, 1),
    Sketcher.Constraint("Equal", 3, 5),
    Sketcher.Constraint("Equal", 1, 7),
    Sketcher.Constraint("Equal", 5, 9),
    Sketcher.Constraint("Equal", 4, 10),
    Sketcher.Constraint("Equal", 9, 11),
    Sketcher.Constraint("Symmetric", 1, 3, 7, 3, -1, 1),
    Sketcher.Constraint("PointOnObject", 1, 3, -1),
    Sketcher.Constraint("Radius", 4, 2.5),
    Sketcher.Constraint("Radius", 3, 0.25),
    Sketcher.Constraint("DistanceX", 7, 3, 1, 3, 3.5),
    Sketcher.Constraint("Radius", 1, 0.465644),
])
sketch5.setExpression("Constraints[25]", "Params.sketch5_radius")
sketch5.setExpression("Constraints[26]", "Params.sketch5_radius2")
pad4 = body.newObject("PartDesign::Pad", "Pad003")
pad4.Profile = sketch5
pad4.setExpression("Length", "Params.pad4_length")
pad4.Reversed = True

doc.recompute()
